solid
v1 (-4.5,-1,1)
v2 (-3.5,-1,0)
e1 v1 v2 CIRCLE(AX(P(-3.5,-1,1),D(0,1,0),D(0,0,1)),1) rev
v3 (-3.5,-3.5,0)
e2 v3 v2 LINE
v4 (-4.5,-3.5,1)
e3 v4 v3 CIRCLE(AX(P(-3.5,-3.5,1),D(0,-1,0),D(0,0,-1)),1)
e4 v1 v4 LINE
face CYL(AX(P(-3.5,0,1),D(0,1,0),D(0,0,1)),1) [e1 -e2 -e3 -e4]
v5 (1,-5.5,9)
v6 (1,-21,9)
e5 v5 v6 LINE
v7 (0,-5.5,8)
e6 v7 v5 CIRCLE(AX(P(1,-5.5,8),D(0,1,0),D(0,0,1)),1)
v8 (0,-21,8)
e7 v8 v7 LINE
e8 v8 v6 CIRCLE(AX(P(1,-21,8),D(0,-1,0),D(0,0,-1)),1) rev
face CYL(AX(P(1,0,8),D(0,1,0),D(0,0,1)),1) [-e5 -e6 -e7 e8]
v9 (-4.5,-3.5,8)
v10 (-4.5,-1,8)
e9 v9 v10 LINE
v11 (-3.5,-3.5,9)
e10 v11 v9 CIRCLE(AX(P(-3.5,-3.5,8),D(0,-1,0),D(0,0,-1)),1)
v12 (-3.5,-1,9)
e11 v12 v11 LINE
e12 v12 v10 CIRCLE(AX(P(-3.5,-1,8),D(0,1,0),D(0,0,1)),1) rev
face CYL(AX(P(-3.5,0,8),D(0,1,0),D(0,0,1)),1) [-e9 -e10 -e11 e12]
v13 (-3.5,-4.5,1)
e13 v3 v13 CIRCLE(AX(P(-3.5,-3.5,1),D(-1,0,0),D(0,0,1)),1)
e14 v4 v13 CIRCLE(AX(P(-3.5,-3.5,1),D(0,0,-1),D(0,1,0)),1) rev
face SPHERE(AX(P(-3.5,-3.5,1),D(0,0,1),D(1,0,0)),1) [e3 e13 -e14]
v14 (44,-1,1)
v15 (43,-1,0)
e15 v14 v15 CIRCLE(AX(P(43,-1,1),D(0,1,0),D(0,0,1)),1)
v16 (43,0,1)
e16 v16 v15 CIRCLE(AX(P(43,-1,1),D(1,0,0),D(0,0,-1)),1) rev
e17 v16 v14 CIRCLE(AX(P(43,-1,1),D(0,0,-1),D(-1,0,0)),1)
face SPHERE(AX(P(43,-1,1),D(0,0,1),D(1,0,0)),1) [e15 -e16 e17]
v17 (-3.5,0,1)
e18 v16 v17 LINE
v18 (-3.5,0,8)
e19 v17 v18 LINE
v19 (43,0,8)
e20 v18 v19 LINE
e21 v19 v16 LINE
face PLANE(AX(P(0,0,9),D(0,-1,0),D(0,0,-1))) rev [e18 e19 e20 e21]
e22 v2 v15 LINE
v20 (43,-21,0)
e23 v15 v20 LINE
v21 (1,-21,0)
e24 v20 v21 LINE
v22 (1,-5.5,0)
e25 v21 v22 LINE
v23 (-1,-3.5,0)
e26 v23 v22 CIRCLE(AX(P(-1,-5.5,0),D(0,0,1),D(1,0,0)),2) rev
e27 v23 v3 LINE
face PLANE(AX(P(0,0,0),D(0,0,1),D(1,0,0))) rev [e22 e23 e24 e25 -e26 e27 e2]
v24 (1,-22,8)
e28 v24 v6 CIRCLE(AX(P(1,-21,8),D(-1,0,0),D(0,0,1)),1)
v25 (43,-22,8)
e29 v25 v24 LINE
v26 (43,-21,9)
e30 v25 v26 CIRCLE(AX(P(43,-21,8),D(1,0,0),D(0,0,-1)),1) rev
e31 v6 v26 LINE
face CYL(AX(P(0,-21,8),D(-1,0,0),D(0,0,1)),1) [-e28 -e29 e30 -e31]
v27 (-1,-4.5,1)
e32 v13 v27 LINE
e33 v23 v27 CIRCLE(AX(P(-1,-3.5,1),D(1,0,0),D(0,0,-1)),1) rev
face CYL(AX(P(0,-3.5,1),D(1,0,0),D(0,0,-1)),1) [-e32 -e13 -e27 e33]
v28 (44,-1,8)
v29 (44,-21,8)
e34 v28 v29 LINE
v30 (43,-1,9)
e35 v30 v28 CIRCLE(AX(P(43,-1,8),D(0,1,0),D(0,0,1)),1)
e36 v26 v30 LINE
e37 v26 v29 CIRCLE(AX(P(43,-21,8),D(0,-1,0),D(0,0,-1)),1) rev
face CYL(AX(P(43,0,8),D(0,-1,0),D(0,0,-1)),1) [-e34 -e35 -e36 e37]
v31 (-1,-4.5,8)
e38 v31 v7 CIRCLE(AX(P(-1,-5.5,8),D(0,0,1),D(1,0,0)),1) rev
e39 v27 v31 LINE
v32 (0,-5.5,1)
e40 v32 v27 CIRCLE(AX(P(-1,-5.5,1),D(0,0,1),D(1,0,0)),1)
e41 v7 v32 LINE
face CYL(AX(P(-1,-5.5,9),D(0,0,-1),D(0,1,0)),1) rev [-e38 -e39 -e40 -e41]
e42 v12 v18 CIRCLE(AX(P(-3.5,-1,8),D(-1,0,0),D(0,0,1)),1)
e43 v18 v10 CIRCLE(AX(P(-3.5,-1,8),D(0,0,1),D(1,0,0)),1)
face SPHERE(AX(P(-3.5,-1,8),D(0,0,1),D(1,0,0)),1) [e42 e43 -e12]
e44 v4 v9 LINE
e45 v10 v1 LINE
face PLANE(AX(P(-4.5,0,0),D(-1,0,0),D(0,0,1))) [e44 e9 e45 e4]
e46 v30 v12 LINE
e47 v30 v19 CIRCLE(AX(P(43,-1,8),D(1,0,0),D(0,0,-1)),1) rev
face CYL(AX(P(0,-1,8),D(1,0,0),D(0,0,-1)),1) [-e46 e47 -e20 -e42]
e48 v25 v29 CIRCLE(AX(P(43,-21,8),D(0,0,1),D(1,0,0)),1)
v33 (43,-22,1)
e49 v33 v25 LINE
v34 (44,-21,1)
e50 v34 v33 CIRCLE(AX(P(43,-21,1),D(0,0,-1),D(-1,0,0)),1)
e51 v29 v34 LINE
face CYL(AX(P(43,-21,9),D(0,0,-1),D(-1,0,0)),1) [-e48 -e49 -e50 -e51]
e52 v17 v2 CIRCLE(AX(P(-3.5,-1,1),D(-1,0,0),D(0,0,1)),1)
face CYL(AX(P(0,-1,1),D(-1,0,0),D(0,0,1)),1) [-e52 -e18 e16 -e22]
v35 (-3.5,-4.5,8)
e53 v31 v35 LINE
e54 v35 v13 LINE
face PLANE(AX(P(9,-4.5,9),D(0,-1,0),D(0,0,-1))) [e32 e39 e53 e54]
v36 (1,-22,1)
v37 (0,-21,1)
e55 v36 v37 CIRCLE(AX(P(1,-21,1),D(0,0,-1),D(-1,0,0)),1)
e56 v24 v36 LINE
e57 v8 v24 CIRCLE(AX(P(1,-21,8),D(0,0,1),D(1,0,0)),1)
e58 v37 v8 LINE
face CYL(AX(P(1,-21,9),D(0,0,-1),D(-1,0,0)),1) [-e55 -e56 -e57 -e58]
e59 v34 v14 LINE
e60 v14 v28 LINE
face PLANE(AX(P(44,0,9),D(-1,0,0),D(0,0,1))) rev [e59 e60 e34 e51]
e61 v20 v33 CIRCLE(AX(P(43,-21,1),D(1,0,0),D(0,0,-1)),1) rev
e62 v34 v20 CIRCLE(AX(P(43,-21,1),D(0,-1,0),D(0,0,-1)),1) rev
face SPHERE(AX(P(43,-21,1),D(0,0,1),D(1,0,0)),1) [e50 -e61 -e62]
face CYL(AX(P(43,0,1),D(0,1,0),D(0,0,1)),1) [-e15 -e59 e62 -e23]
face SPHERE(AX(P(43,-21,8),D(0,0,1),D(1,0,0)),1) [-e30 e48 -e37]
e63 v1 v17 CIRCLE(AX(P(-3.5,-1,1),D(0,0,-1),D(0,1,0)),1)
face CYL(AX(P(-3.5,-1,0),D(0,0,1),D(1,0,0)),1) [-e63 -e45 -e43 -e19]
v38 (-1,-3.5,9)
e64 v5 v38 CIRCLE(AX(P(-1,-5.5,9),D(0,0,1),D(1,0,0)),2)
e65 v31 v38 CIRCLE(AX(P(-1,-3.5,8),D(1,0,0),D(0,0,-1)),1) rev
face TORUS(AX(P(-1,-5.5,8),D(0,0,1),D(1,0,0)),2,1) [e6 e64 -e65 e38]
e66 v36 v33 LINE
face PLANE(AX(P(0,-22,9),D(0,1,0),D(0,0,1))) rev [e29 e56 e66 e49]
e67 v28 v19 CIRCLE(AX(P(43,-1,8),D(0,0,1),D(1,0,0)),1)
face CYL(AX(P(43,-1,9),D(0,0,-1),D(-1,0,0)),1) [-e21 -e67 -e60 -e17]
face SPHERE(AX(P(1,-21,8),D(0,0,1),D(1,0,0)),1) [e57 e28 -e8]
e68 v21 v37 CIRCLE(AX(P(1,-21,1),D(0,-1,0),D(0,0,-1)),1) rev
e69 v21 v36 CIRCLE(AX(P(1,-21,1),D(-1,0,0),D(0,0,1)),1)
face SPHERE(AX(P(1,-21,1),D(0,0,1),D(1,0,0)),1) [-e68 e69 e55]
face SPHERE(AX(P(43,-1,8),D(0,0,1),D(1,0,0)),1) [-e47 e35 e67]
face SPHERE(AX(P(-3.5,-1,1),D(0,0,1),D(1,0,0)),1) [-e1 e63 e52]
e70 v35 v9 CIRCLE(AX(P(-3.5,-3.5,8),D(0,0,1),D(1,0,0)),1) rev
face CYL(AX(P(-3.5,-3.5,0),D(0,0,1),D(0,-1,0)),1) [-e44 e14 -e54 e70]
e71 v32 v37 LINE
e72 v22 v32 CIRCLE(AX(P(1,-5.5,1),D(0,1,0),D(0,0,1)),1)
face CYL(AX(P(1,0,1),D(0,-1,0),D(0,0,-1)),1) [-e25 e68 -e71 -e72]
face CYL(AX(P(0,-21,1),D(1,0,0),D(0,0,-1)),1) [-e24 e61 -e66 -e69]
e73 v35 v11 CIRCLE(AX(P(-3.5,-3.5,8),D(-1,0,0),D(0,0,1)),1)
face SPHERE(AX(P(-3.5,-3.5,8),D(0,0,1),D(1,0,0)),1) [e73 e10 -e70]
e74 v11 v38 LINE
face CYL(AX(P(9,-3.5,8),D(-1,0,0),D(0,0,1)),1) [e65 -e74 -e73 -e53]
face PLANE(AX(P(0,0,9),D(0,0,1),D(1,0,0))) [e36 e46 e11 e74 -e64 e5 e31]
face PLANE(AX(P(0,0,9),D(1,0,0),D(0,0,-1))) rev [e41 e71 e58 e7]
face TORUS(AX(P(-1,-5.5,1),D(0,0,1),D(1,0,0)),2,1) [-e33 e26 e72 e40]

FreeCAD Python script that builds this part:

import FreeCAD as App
import Part
import Sketcher


def add_polygon(sketch, points):
    """Adds a closed chain of lines whose ends are joined by coincident constraints."""
    first, n = sketch.GeometryCount, len(points)
    for a, b in zip(points, points[1:] + points[:1]):
        sketch.addGeometry(Part.LineSegment(App.Vector(*a, 0), App.Vector(*b, 0)), False)
    for i in range(n):
        sketch.addConstraint(Sketcher.Constraint("Coincident", first + i, 2, first + (i + 1) % n, 1))

doc = App.newDocument("Part")
body = doc.addObject("PartDesign::Body", "Body")

sketch1 = body.newObject("Sketcher::SketchObject", "Sketch")
sketch1.AttachmentSupport = (doc.getObject("XY_Plane"), [""])
sketch1.MapMode = "FlatFace"
add_polygon(sketch1, [(0, 0), (0, -22), (44, -22), (44, 0)])
sketch1.addConstraint([
    Sketcher.Constraint("Vertical", 0),
    Sketcher.Constraint("Horizontal", 1),
    Sketcher.Constraint("Vertical", 2),
    Sketcher.Constraint("Horizontal", 3),
    Sketcher.Constraint("Coincident", 3, 2, -1, 1),
    Sketcher.Constraint("DistanceX", 1, 1, 1, 2, 44.0),
    Sketcher.Constraint("DistanceY", 0, 2, 0, 1, 22.0),
])
pad1 = body.newObject("PartDesign::Pad", "Pad")
pad1.Profile = sketch1
pad1.Length = 9

sketch2 = body.newObject("Sketcher::SketchObject", "Sketch001")
sketch2.AttachmentSupport = (doc.getObject("YZ_Plane"), [""])
sketch2.MapMode = "FlatFace"
add_polygon(sketch2, [(0, 0), (-4.5, 0), (-4.5, 9), (0, 9)])
sketch2.addConstraint([
    Sketcher.Constraint("Horizontal", 0),
    Sketcher.Constraint("Vertical", 1),
    Sketcher.Constraint("Horizontal", 2),
    Sketcher.Constraint("Vertical", 3),
    Sketcher.Constraint("Coincident", 3, 2, -1, 1),
    Sketcher.Constraint("DistanceY", 1, 1, 1, 2, 9.0),
    Sketcher.Constraint("DistanceX", 0, 2, 0, 1, 4.5),
])
pad2 = body.newObject("PartDesign::Pad", "Pad001")
pad2.Profile = sketch2
pad2.Type = "TwoLengths"
pad2.Length = 4.5
pad2.Length2 = 9
pad2.Reversed = True
doc.recompute()

fillet = body.newObject("PartDesign::Fillet", "Fillet")
fillet.Base = (pad2, ["Edge1"])
fillet.UseAllEdges = True
fillet.Radius = 1

doc.recompute()
